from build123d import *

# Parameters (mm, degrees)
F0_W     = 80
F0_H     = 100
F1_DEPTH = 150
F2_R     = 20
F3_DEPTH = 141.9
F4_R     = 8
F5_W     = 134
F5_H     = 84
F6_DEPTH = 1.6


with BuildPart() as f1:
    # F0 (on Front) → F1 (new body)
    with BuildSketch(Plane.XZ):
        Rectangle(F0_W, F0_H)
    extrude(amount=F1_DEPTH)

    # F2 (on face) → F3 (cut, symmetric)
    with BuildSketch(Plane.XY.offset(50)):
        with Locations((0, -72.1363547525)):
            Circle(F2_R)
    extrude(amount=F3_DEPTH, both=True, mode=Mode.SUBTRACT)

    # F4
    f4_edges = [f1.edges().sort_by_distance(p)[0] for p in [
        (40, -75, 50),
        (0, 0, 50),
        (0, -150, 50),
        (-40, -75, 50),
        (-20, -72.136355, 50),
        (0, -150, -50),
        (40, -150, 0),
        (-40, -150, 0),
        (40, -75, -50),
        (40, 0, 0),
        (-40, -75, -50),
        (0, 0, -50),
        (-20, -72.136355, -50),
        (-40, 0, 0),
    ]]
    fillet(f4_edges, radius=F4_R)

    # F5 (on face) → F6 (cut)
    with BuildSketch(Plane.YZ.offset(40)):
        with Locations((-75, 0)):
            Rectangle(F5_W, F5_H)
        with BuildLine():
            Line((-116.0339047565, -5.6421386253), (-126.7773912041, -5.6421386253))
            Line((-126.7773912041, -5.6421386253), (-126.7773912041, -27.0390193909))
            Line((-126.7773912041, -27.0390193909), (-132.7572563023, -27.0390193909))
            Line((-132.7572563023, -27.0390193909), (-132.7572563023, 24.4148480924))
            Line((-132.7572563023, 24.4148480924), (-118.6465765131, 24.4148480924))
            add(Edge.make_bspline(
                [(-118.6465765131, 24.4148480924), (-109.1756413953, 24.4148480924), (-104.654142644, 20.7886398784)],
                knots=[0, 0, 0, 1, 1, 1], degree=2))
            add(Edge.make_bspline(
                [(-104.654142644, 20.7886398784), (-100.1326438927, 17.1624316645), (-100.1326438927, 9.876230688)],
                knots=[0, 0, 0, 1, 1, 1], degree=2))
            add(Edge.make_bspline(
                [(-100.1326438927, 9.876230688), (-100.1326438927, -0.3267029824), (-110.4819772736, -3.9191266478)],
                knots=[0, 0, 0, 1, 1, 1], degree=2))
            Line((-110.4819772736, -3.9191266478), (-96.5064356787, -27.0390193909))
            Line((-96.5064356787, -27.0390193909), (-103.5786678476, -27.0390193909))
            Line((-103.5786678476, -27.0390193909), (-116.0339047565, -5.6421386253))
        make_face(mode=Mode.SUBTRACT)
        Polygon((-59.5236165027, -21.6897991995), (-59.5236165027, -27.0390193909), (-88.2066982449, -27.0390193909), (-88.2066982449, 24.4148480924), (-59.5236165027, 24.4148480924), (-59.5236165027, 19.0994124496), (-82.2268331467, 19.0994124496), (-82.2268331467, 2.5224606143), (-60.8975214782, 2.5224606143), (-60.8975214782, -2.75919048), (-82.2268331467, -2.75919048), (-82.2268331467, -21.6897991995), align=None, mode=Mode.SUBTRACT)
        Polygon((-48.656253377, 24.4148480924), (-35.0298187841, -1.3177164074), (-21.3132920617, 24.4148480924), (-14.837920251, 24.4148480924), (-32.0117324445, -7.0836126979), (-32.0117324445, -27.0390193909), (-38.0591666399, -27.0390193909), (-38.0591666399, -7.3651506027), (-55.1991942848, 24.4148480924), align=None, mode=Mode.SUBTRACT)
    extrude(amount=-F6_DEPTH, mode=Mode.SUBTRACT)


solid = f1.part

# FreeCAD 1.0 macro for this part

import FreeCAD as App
import Part
import Sketcher
from FreeCAD import Vector


def add_polygon(sketch, points):
    """Adds a closed chain of lines whose ends are joined by coincident constraints."""
    first, n = sketch.GeometryCount, len(points)
    for a, b in zip(points, points[1:] + points[:1]):
        sketch.addGeometry(Part.LineSegment(App.Vector(*a, 0), App.Vector(*b, 0)), False)
    for i in range(n):
        sketch.addConstraint(Sketcher.Constraint("Coincident", first + i, 2, first + (i + 1) % n, 1))

doc = App.newDocument("Part")
params = doc.addObject("Spreadsheet::Sheet", "Params")
for row, (alias, value) in enumerate([
    ("sketch1_width", "80 mm"),
    ("sketch1_height", "100 mm"),
    ("pad1_length", "150 mm"),
    ("sketch2_diameter", "40 mm"),
    ("pocket1_length", "283.8 mm"),
    ("fillet_radius", "8 mm"),
    ("sketch3_width", "134 mm"),
    ("sketch3_height", "84 mm"),
    ("pocket2_length", "1.6 mm"),
], start=1):
    params.set(f"A{row}", alias)
    params.set(f"B{row}", "=" + value)
    params.setAlias(f"B{row}", alias)

body = doc.addObject("PartDesign::Body", "Body")

sketch1 = doc.addObject("Sketcher::SketchObject", "Sketch")
body.addObject(sketch1)
sketch1.AttachmentSupport = (doc.XZ_Plane, [""])
sketch1.MapMode = "FlatFace"
add_polygon(sketch1, [(-40, 50), (-40, -50), (40, -50), (40, 50)])
sketch1.addConstraint(Sketcher.Constraint("Vertical", 0))
sketch1.addConstraint(Sketcher.Constraint("Horizontal", 1))
sketch1.addConstraint(Sketcher.Constraint("Vertical", 2))
sketch1.addConstraint(Sketcher.Constraint("Horizontal", 3))
sketch1.addConstraint(Sketcher.Constraint("Symmetric", 0, 2, 2, 2, -1, 1))
sketch1.addConstraint(Sketcher.Constraint("DistanceX", 1, 1, 1, 2, 80.0))
sketch1.addConstraint(Sketcher.Constraint("DistanceY", 0, 2, 0, 1, 100.0))
sketch1.setExpression("Constraints[9]", "Params.sketch1_width")
sketch1.setExpression("Constraints[10]", "Params.sketch1_height")
pad1 = doc.addObject("PartDesign::Pad", "Pad")
body.addObject(pad1)
pad1.Profile = sketch1
pad1.setExpression("Length", "Params.pad1_length")

sketch2 = doc.addObject("Sketcher::SketchObject", "Sketch001")
body.addObject(sketch2)
sketch2.AttachmentSupport = (doc.XY_Plane, [""])
sketch2.MapMode = "FlatFace"
sketch2.AttachmentOffset = App.Placement(Vector(0, 0, 50), App.Rotation())
sketch2.addGeometry(Part.Circle(Vector(0, -72, 0), Vector(0, 0, 1), 20), False)
sketch2.addConstraint(Sketcher.Constraint("PointOnObject", 0, 3, -2))
sketch2.addConstraint(Sketcher.Constraint("Diameter", 0, 40.0))
sketch2.addConstraint(Sketcher.Constraint("DistanceY", 0, 3, -1, 1, 72.136355))
sketch2.setExpression("Constraints[1]", "Params.sketch2_diameter")
pocket1 = doc.addObject("PartDesign::Pocket", "Pocket")
body.addObject(pocket1)
pocket1.Profile = sketch2
pocket1.setExpression("Length", "Params.pocket1_length")
pocket1.Midplane = True
doc.recompute()

fillet = doc.addObject("PartDesign::Fillet", "Fillet")
body.addObject(fillet)
fillet.Base = (pocket1, ["Edge1"])
fillet.UseAllEdges = True
fillet.setExpression("Radius", "Params.fillet_radius")

sketch3 = doc.addObject("Sketcher::SketchObject", "Sketch002")
body.addObject(sketch3)
sketch3.AttachmentSupport = (doc.YZ_Plane, [""])
sketch3.MapMode = "FlatFace"
sketch3.AttachmentOffset = App.Placement(Vector(0, 0, 40), App.Rotation())
add_polygon(sketch3, [(-142, 42), (-142, -42), (-8, -42), (-8, 42)])
sketch3.addGeometry(Part.LineSegment(Vector(-103.578668, -27.039019, 0), Vector(-116.033905, -5.642139, 0)), False)
sketch3.addGeometry(Part.LineSegment(Vector(-116.033905, -5.642139, 0), Vector(-126.777391, -5.642139, 0)), False)
sketch3.addGeometry(Part.LineSegment(Vector(-126.777391, -5.642139, 0), Vector(-126.777391, -27.039019, 0)), False)
sketch3.addGeometry(Part.LineSegment(Vector(-126.777391, -27.039019, 0), Vector(-132.757256, -27.039019, 0)), False)
sketch3.addGeometry(Part.LineSegment(Vector(-132.757256, -27.039019, 0), Vector(-132.757256, 24.414848, 0)), False)
sketch3.addGeometry(Part.LineSegment(Vector(-132.757256, 24.414848, 0), Vector(-118.646577, 24.414848, 0)), False)
sketch3.addGeometry(Part.BSplineCurve([Vector(-118.646577, 24.414848, 0), Vector(-109.175641, 24.414848, 0), Vector(-104.654143, 20.78864, 0)], [3, 3], [0, 1], False, 2, [1, 1, 1], False), False)
sketch3.addGeometry(Part.BSplineCurve([Vector(-104.654143, 20.78864, 0), Vector(-100.132644, 17.162432, 0), Vector(-100.132644, -0.326703, 0), Vector(-110.481977, -3.919127, 0)], [3, 1, 3], [0, 1, 2.400309119], False, 2, [1, 1, 1, 1], False), False)
sketch3.addGeometry(Part.LineSegment(Vector(-110.481977, -3.919127, 0), Vector(-96.506436, -27.039019, 0)), False)
sketch3.addGeometry(Part.LineSegment(Vector(-96.506436, -27.039019, 0), Vector(-103.578668, -27.039019, 0)), False)
add_polygon(sketch3, [(-82.226833, -21.689799), (-59.523617, -21.689799), (-59.523617, -27.039019), (-88.206698, -27.039019), (-88.206698, 24.414848), (-59.523617, 24.414848), (-59.523617, 19.099412), (-82.226833, 19.099412), (-82.226833, 2.522461), (-60.897521, 2.522461), (-60.897521, -2.75919), (-82.226833, -2.75919)])
add_polygon(sketch3, [(-55.199194, 24.414848), (-48.656253, 24.414848), (-35.029819, -1.317716), (-21.313292, 24.414848), (-14.83792, 24.414848), (-32.011732, -7.083613), (-32.011732, -27.039019), (-38.059167, -27.039019), (-38.059167, -7.365151)])
sketch3.addConstraint(Sketcher.Constraint("Block", 10))
sketch3.addConstraint(Sketcher.Constraint("Block", 11))
sketch3.addConstraint(Sketcher.Constraint("Coincident", 4, 2, 5, 1))
sketch3.addConstraint(Sketcher.Constraint("Coincident", 5, 2, 6, 1))
sketch3.addConstraint(Sketcher.Constraint("Coincident", 6, 2, 7, 1))
sketch3.addConstraint(Sketcher.Constraint("Coincident", 7, 2, 8, 1))
sketch3.addConstraint(Sketcher.Constraint("Coincident", 8, 2, 9, 1))
sketch3.addConstraint(Sketcher.Constraint("Coincident", 9, 2, 10, 1))
sketch3.addConstraint(Sketcher.Constraint("Coincident", 11, 2, 12, 1))
sketch3.addConstraint(Sketcher.Constraint("Coincident", 12, 2, 13, 1))
sketch3.addConstraint(Sketcher.Constraint("Coincident", 13, 2, 4, 1))
sketch3.addConstraint(Sketcher.Constraint("Vertical", 0))
sketch3.addConstraint(Sketcher.Constraint("Horizontal", 1))
sketch3.addConstraint(Sketcher.Constraint("Vertical", 2))
sketch3.addConstraint(Sketcher.Constraint("Horizontal", 3))
sketch3.addConstraint(Sketcher.Constraint("Horizontal", 5))
sketch3.addConstraint(Sketcher.Constraint("Vertical", 6))
sketch3.addConstraint(Sketcher.Constraint("Horizontal", 7))
sketch3.addConstraint(Sketcher.Constraint("Vertical", 8))
sketch3.addConstraint(Sketcher.Constraint("Horizontal", 9))
sketch3.addConstraint(Sketcher.Constraint("Horizontal", 13))
sketch3.addConstraint(Sketcher.Constraint("Horizontal", 14))
sketch3.addConstraint(Sketcher.Constraint("Vertical", 15))
sketch3.addConstraint(Sketcher.Constraint("Horizontal", 16))
sketch3.addConstraint(Sketcher.Constraint("Vertical", 17))
sketch3.addConstraint(Sketcher.Constraint("Horizontal", 18))
sketch3.addConstraint(Sketcher.Constraint("Vertical", 19))
sketch3.addConstraint(Sketcher.Constraint("Horizontal", 20))
sketch3.addConstraint(Sketcher.Constraint("Vertical", 21))
sketch3.addConstraint(Sketcher.Constraint("Horizontal", 22))
sketch3.addConstraint(Sketcher.Constraint("Vertical", 23))
sketch3.addConstraint(Sketcher.Constraint("Horizontal", 24))
sketch3.addConstraint(Sketcher.Constraint("Vertical", 25))
sketch3.addConstraint(Sketcher.Constraint("Horizontal", 26))
sketch3.addConstraint(Sketcher.Constraint("Horizontal", 29))
sketch3.addConstraint(Sketcher.Constraint("Vertical", 31))
sketch3.addConstraint(Sketcher.Constraint("Horizontal", 32))
sketch3.addConstraint(Sketcher.Constraint("Vertical", 33))
sketch3.addConstraint(Sketcher.Constraint("Horizontal", 7, 2, 12, 2))
sketch3.addConstraint(Sketcher.Constraint("Horizontal", 13, 2, 15, 2))
sketch3.addConstraint(Sketcher.Constraint("Horizontal", 9, 2, 17, 2))
sketch3.addConstraint(Sketcher.Constraint("Horizontal", 18, 2, 26, 2))
sketch3.addConstraint(Sketcher.Constraint("Horizontal", 26, 2, 28, 2))
sketch3.addConstraint(Sketcher.Constraint("Horizontal", 16, 2, 31, 2))
sketch3.addConstraint(Sketcher.Constraint("Vertical", 15, 2, 18, 2))
sketch3.addConstraint(Sketcher.Constraint("Vertical", 21, 2, 24, 2))
sketch3.addConstraint(Sketcher.Constraint("DistanceX", 1, 1, 1, 2, 134.0))
sketch3.addConstraint(Sketcher.Constraint("DistanceY", 0, 2, 0, 1, 84.0))
sketch3.addConstraint(Sketcher.Constraint("DistanceX", 0, 2, -1, 1, 142.0))
sketch3.addConstraint(Sketcher.Constraint("DistanceY", 0, 2, -1, 1, 42.0))
sketch3.addConstraint(Sketcher.Constraint("DistanceX", 9, 1, 9, 2, 14.11068))
sketch3.addConstraint(Sketcher.Constraint("DistanceX", 16, 2, 16, 1, 28.683082))
sketch3.addConstraint(Sketcher.Constraint("DistanceX", 22, 1, 22, 2, 21.329312))
sketch3.addConstraint(Sketcher.Constraint("DistanceX", 26, 1, 26, 2, 6.542941))
sketch3.addConstraint(Sketcher.Constraint("DistanceX", 29, 1, 29, 2, 6.475372))
sketch3.addConstraint(Sketcher.Constraint("DistanceY", 6, 2, 6, 1, 21.396881))
sketch3.addConstraint(Sketcher.Constraint("DistanceY", 15, 2, 15, 1, 5.34922))
sketch3.addConstraint(Sketcher.Constraint("DistanceY", 21, 2, 21, 1, 16.576952))
sketch3.addConstraint(Sketcher.Constraint("DistanceY", 23, 2, 23, 1, 5.281651))
sketch3.addConstraint(Sketcher.Constraint("DistanceY", 25, 2, 25, 1, 18.930609))
sketch3.addConstraint(Sketcher.Constraint("DistanceY", 33, 1, 33, 2, 19.673869))
sketch3.addConstraint(Sketcher.Constraint("DistanceY", 14, 2, -1, 1, 21.689799))
sketch3.addConstraint(Sketcher.Constraint("DistanceX", 16, 2, -1, 1, 88.206698))
sketch3.addConstraint(Sketcher.Constraint("DistanceX", 27, 2, 29, 2, 20.191899))
sketch3.addConstraint(Sketcher.Constraint("Distance", 27, 29.117771))
sketch3.addConstraint(Sketcher.Constraint("Distance", 28, 29.160041))
sketch3.addConstraint(Sketcher.Constraint("DistanceX", 5, 2, 5, 1, 10.743486))
sketch3.addConstraint(Sketcher.Constraint("DistanceX", 7, 2, 7, 1, 5.979865))
sketch3.addConstraint(Sketcher.Constraint("DistanceX", 13, 2, 13, 1, 7.072232))
sketch3.addConstraint(Sketcher.Constraint("DistanceX", 14, 1, 14, 2, 22.703217))
sketch3.addConstraint(Sketcher.Constraint("DistanceX", 32, 2, 32, 1, 6.047434))
sketch3.addConstraint(Sketcher.Constraint("DistanceY", 31, 2, 31, 1, 19.955407))
sketch3.addConstraint(Sketcher.Constraint("DistanceX", 27, 2, -1, 1, 35.029819))
sketch3.addConstraint(Sketcher.Constraint("DistanceX", 4, 2, 12, 2, 19.527469))
sketch3.addConstraint(Sketcher.Constraint("DistanceX", 23, 2, 30, 2, 28.885789))
sketch3.setExpression("Constraints[71]", "Params.sketch3_width")
sketch3.setExpression("Constraints[72]", "Params.sketch3_height")
pocket2 = doc.addObject("PartDesign::Pocket", "Pocket001")
body.addObject(pocket2)
pocket2.Profile = sketch3
pocket2.setExpression("Length", "Params.pocket2_length")

doc.recompute()
